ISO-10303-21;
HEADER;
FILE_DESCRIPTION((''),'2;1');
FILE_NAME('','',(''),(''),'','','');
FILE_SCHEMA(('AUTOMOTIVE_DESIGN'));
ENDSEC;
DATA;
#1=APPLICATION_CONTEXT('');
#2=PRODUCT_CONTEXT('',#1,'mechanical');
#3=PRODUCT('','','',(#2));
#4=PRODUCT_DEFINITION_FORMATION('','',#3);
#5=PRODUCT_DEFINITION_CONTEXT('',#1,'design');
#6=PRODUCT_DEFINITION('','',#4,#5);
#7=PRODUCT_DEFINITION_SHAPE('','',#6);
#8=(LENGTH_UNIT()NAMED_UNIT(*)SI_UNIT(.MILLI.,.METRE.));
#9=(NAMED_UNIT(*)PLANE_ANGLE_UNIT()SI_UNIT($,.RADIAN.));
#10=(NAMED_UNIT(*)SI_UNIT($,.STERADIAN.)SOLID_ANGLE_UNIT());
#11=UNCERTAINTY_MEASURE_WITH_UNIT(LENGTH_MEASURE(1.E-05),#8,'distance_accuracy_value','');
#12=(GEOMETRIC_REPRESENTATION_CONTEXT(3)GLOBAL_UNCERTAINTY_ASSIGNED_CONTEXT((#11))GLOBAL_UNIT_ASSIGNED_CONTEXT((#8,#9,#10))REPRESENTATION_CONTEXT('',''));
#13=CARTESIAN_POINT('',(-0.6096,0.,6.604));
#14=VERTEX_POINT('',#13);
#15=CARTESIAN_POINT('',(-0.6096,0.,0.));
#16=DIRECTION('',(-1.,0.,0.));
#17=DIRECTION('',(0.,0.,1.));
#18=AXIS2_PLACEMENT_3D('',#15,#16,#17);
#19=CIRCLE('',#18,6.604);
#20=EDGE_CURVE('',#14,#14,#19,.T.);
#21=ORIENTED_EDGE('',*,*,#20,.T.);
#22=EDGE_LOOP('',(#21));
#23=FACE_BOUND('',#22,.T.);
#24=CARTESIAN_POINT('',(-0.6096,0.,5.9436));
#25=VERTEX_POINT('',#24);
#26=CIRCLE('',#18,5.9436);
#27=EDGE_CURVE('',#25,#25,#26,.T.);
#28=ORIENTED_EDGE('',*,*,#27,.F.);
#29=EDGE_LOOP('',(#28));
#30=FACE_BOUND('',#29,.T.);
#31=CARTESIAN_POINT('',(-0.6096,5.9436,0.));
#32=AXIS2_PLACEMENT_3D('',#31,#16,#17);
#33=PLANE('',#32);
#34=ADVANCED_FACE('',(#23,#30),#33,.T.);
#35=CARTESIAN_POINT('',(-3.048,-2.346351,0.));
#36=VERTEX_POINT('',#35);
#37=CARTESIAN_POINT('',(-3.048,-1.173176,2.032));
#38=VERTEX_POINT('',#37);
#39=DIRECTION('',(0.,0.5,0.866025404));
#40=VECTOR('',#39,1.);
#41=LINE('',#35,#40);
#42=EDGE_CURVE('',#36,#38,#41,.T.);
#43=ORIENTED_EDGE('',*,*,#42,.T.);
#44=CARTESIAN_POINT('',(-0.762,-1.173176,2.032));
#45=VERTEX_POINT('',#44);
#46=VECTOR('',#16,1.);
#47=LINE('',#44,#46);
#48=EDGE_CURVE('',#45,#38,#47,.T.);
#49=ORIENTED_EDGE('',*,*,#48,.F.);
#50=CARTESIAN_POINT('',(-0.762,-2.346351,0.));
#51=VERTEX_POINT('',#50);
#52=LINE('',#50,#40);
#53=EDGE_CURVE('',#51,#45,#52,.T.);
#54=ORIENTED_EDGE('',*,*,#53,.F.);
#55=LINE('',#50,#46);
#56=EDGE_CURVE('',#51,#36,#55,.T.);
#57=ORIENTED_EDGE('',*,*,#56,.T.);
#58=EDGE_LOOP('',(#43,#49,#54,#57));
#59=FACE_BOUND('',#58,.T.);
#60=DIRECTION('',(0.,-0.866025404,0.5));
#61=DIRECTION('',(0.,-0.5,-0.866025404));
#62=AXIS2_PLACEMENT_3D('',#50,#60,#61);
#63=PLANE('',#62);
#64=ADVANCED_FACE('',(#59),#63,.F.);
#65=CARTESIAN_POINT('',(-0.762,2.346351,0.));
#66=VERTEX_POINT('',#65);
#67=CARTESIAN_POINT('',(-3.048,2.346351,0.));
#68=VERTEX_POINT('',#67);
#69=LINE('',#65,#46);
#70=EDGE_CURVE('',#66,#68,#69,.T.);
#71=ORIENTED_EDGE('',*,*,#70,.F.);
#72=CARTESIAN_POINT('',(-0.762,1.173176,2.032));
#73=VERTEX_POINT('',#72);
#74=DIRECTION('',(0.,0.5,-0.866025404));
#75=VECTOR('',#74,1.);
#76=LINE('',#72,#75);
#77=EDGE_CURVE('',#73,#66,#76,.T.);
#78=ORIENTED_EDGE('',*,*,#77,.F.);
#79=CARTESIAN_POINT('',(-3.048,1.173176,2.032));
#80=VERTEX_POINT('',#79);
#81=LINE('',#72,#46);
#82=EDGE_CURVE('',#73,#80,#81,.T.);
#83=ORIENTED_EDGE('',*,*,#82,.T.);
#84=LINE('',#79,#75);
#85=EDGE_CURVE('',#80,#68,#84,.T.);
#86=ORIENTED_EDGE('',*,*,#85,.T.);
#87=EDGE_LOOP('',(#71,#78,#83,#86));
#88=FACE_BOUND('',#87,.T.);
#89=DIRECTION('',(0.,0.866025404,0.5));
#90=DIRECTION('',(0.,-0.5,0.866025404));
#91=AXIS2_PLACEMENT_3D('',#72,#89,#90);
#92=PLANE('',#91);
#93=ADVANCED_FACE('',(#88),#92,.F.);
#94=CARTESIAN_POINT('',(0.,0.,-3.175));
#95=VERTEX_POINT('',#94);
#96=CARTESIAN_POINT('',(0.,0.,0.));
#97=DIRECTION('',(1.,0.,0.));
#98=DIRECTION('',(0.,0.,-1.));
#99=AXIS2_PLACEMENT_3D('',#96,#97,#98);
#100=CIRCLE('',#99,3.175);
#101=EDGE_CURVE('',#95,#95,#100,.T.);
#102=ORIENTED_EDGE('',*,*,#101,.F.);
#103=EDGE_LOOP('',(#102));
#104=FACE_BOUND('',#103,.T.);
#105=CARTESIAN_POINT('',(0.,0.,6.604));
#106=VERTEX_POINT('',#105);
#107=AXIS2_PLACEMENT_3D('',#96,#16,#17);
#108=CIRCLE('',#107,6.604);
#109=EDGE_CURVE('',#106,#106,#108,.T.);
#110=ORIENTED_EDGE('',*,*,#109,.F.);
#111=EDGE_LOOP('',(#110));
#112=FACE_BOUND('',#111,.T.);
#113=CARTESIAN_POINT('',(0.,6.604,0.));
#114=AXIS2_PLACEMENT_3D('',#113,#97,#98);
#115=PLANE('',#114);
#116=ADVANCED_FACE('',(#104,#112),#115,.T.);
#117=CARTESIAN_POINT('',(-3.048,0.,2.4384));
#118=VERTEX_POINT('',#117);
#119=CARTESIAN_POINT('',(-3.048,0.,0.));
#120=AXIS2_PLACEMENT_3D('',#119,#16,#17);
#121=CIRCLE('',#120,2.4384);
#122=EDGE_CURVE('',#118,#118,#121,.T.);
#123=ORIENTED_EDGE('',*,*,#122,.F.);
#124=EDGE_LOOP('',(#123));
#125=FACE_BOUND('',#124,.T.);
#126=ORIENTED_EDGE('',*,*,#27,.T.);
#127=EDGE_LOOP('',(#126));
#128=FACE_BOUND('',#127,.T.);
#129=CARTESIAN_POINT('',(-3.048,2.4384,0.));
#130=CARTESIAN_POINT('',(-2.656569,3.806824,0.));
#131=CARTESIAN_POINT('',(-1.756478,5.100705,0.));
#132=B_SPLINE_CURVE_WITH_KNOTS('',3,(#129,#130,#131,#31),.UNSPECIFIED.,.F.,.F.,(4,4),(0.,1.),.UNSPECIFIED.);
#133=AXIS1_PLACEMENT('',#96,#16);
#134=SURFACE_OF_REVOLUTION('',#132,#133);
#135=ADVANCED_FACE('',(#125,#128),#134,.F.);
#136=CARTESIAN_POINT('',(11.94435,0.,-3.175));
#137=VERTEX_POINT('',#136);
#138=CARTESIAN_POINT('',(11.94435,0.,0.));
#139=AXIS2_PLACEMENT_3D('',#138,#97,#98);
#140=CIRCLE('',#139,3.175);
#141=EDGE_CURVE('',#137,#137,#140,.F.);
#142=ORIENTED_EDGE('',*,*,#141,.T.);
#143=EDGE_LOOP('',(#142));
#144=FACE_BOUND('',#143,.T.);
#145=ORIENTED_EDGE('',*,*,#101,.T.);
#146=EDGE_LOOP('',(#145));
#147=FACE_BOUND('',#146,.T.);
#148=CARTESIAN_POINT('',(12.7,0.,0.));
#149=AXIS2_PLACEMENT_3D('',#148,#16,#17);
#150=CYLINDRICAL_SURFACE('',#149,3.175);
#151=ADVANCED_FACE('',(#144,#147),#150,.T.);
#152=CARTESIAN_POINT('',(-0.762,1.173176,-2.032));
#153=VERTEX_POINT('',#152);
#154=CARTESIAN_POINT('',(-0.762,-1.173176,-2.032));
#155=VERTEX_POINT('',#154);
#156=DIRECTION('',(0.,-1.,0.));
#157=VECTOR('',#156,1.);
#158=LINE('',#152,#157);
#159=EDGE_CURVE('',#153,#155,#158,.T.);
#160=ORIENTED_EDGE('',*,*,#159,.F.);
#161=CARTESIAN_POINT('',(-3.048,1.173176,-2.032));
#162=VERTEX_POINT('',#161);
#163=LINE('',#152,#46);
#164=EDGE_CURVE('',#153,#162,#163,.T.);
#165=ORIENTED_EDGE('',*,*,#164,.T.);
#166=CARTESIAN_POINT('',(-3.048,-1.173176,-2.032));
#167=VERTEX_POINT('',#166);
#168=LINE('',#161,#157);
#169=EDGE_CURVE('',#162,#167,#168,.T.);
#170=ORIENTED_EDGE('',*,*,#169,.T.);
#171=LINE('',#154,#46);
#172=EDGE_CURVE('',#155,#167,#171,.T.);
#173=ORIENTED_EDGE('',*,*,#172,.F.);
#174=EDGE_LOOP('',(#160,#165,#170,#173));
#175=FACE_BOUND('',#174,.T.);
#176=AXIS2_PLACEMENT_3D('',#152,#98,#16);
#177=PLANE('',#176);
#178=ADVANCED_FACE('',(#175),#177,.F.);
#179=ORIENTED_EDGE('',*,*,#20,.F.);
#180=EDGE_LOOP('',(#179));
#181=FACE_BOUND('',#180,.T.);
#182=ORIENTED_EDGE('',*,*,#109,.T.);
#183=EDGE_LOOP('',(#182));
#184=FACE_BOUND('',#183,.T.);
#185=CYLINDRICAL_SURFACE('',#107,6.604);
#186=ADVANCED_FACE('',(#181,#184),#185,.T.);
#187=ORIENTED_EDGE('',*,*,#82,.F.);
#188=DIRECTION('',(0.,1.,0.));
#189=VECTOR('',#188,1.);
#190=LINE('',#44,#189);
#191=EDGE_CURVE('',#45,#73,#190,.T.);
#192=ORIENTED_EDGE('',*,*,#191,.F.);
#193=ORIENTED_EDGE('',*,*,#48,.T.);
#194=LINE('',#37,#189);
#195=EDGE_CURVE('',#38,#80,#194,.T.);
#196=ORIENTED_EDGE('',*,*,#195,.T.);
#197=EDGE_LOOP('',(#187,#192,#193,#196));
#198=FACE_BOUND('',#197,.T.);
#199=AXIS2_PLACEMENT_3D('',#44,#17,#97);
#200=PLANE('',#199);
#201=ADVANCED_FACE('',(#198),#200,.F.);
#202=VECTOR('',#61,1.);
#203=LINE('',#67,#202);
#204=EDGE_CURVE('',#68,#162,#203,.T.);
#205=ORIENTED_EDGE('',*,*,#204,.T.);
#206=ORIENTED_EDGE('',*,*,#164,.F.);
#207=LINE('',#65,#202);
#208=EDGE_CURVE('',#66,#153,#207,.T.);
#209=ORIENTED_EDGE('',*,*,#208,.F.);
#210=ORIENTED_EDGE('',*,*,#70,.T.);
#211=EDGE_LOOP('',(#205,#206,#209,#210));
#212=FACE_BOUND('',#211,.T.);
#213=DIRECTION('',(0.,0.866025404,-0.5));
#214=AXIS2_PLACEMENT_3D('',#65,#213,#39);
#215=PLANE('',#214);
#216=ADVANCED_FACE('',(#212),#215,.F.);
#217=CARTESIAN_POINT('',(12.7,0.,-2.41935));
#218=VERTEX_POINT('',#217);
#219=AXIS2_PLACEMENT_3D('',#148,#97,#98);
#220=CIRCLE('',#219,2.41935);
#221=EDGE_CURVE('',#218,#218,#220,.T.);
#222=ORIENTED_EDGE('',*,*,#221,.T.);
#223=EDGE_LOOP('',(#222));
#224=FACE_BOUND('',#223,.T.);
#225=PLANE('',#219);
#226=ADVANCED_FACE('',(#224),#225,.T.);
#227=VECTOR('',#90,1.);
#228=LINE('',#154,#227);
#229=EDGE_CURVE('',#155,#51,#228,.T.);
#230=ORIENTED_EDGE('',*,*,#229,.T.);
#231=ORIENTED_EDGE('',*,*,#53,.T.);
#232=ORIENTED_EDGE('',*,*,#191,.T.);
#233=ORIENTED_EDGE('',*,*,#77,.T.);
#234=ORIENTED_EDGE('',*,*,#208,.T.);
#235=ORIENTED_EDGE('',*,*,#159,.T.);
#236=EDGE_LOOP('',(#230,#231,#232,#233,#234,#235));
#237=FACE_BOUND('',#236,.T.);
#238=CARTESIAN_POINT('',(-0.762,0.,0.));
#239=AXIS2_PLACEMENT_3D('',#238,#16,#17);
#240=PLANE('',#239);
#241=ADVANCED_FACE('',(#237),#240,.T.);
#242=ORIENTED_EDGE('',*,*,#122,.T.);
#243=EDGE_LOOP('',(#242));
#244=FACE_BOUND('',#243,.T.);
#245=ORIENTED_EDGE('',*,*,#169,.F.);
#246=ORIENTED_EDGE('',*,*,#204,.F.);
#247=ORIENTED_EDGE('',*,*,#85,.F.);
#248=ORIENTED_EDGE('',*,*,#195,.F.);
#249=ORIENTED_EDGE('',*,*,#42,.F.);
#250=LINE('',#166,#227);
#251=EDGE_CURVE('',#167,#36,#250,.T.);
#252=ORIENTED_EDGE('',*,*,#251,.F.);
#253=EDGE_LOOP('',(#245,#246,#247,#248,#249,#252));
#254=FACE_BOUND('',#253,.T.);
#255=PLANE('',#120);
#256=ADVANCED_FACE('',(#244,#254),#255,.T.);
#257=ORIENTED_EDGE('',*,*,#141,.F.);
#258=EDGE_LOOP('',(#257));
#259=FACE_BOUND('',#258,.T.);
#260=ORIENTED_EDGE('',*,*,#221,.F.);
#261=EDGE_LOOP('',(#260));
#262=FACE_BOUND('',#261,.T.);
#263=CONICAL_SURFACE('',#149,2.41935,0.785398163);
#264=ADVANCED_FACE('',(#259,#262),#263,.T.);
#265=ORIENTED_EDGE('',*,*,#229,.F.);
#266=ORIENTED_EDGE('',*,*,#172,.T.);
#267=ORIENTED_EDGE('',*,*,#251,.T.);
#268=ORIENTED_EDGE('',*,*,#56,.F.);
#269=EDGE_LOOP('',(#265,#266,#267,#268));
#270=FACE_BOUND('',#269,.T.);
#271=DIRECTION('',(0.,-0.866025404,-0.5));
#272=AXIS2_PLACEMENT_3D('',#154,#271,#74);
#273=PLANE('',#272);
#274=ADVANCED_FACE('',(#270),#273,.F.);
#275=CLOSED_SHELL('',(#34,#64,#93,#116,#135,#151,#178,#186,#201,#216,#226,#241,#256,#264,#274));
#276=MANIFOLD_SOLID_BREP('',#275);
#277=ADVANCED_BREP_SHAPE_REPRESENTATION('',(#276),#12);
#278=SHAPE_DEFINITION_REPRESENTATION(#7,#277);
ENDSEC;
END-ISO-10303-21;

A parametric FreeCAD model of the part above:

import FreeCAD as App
import Part
import Sketcher

V = App.Vector
Q = App.Units.Quantity


def edges_at(feature, points):
    """Names of the edges that pass closest to the given points."""
    edges = feature.Shape.Edges
    near = lambda p: min(range(len(edges)), key=lambda i: edges[i].distToShape(Part.Vertex(*p))[0])
    return sorted({f"Edge{near(p) + 1}" for p in points})


def add_polygon(sketch, points):
    """Adds a closed chain of lines whose ends are joined by coincident constraints."""
    first, n = sketch.GeometryCount, len(points)
    for a, b in zip(points, points[1:] + points[:1]):
        sketch.addGeometry(Part.LineSegment(App.Vector(*a, 0), App.Vector(*b, 0)), False)
    for i in range(n):
        sketch.addConstraint(Sketcher.Constraint("Coincident", first + i, 2, first + (i + 1) % n, 1))

doc = App.newDocument("Part")
body = doc.addObject("PartDesign::Body", "Body")

# Sketch on XY plane
sketch1 = body.newObject("Sketcher::SketchObject", "Sketch")
sketch1.AttachmentSupport = (doc.getObject("XY_Plane"), [""])
sketch1.MapMode = "FlatFace"
sketch1.addGeometry([
    Part.LineSegment(V(0, 6.604, 0), V(0, 0, 0)),  # 0
    Part.LineSegment(V(0, 0, 0), V(-3.048, 0, 0)),  # 1
    Part.LineSegment(V(-3.048, 0, 0), V(-3.048, 2.4384, 0)),  # 2
    Part.BSplineCurve([V(-0.6096, 5.9436, 0), V(-1.756478, 5.100705, 0), V(-2.656569, 3.806824, 0), V(-3.048, 2.4384, 0)], [4, 4], [0, 1], False, 3, [1, 1, 1, 1], False),  # 3
    Part.LineSegment(V(-0.6096, 5.9436, 0), V(-0.6096, 6.604, 0)),  # 4
    Part.LineSegment(V(-0.6096, 6.604, 0), V(0, 6.604, 0)),  # 5
], False)
sketch1.addConstraint([
    Sketcher.Constraint("Block", 3),
    Sketcher.Constraint("Coincident", 0, 2, 1, 1),
    Sketcher.Constraint("Coincident", 1, 2, 2, 1),
    Sketcher.Constraint("Coincident", 2, 2, 3, 2),
    Sketcher.Constraint("Coincident", 3, 1, 4, 1),
    Sketcher.Constraint("Coincident", 4, 2, 5, 1),
    Sketcher.Constraint("Coincident", 5, 2, 0, 1),
    Sketcher.Constraint("Vertical", 0),
    Sketcher.Constraint("Horizontal", 1),
    Sketcher.Constraint("Vertical", 2),
    Sketcher.Constraint("Vertical", 4),
    Sketcher.Constraint("Horizontal", 5),
    Sketcher.Constraint("Coincident", 0, 2, -1, 1),
    Sketcher.Constraint("DistanceY", 0, 2, 0, 1, Q("0.26 in")),
])
revolution = body.newObject("PartDesign::Revolution", "Revolution")
revolution.Profile = sketch1
revolution.ReferenceAxis = (sketch1, ["H_Axis"])
revolution.Angle = 360

# Sketch on YZ plane
sketch2 = body.newObject("Sketcher::SketchObject", "Sketch001")
sketch2.AttachmentSupport = (doc.getObject("YZ_Plane"), [""])
sketch2.MapMode = "FlatFace"
sketch2.addGeometry(Part.Circle(V(0, 0, 0), V(0, 0, 1), 3.175), False)
sketch2.addConstraint([
    Sketcher.Constraint("Coincident", 0, 3, -1, 1),
    Sketcher.Constraint("Diameter", 0, Q("0.25 in")),
])
pad1 = body.newObject("PartDesign::Pad", "Pad")
pad1.Profile = sketch2
pad1.Length = Q("0.5 in")

# Sketch on YZ plane
sketch3 = body.newObject("Sketcher::SketchObject", "Sketch002")
sketch3.AttachmentSupport = (doc.getObject("YZ_Plane"), [""])
sketch3.MapMode = "FlatFace"
sketch3.AttachmentOffset = App.Placement(V(0, 0, -0.12 * 25.4), App.Rotation())
add_polygon(sketch3, [(-2.346351, 0), (-1.173176, 2.032), (1.173176, 2.032), (2.346351, 0), (1.173176, -2.032), (-1.173176, -2.032)])  # lines 0-5
sketch3.addConstraint([
    Sketcher.Constraint("Horizontal", 1),
    Sketcher.Constraint("Horizontal", 4),
    Sketcher.Constraint("Symmetric", 0, 2, 3, 2, -1, 1),
    Sketcher.Constraint("Symmetric", 2, 2, 5, 2, -1, 1),
    Sketcher.Constraint("PointOnObject", 2, 2, -1),
    Sketcher.Constraint("Parallel", 2, 5),
    Sketcher.Constraint("Vertical", 1, 2, 3, 2),
    Sketcher.Constraint("Angle", 0, Q("60 deg")),
    Sketcher.Constraint("DistanceY", -1, 1, 0, 2, Q("0.08 in")),
    Sketcher.Constraint("DistanceX", 1, 1, 1, 2, 2.346351),
])
pocket1 = body.newObject("PartDesign::Pocket", "Pocket")
pocket1.Profile = sketch3
pocket1.Length = Q("0.09 in")
pocket1.Reversed = True
doc.recompute()

chamfer = body.newObject("PartDesign::Chamfer", "Chamfer")
chamfer.Base = (pocket1, edges_at(pocket1, [(12.7, 0, 3.175)]))
chamfer.Size = 0.75565

doc.recompute()
